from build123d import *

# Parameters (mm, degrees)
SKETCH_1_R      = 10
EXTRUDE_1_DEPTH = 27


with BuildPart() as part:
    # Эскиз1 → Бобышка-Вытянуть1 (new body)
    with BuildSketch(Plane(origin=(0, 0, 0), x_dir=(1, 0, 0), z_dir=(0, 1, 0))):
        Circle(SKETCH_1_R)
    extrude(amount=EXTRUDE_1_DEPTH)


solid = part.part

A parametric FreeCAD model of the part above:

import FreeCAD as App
import Part
import Sketcher
Q = App.Units.Quantity

doc = App.newDocument("Part")
body = doc.addObject("PartDesign::Body", "Body")

# Sketch on XZ plane
sketch1 = body.newObject("Sketcher::SketchObject", "Sketch")
sketch1.AttachmentSupport = (doc.getObject("XZ_Plane"), [""])
sketch1.MapMode = "FlatFace"
sketch1.addGeometry(Part.Circle(App.Vector(0, 0, 0), App.Vector(0, 0, 1), 10), False)
sketch1.addConstraint(Sketcher.Constraint("Coincident", 0, 3, -1, 1))
sketch1.addConstraint(Sketcher.Constraint("Diameter", 0, Q("20 mm")))
pad1 = body.newObject("PartDesign::Pad", "Pad")
pad1.Profile = sketch1
pad1.Length = 27
pad1.Reversed = True

doc.recompute()
